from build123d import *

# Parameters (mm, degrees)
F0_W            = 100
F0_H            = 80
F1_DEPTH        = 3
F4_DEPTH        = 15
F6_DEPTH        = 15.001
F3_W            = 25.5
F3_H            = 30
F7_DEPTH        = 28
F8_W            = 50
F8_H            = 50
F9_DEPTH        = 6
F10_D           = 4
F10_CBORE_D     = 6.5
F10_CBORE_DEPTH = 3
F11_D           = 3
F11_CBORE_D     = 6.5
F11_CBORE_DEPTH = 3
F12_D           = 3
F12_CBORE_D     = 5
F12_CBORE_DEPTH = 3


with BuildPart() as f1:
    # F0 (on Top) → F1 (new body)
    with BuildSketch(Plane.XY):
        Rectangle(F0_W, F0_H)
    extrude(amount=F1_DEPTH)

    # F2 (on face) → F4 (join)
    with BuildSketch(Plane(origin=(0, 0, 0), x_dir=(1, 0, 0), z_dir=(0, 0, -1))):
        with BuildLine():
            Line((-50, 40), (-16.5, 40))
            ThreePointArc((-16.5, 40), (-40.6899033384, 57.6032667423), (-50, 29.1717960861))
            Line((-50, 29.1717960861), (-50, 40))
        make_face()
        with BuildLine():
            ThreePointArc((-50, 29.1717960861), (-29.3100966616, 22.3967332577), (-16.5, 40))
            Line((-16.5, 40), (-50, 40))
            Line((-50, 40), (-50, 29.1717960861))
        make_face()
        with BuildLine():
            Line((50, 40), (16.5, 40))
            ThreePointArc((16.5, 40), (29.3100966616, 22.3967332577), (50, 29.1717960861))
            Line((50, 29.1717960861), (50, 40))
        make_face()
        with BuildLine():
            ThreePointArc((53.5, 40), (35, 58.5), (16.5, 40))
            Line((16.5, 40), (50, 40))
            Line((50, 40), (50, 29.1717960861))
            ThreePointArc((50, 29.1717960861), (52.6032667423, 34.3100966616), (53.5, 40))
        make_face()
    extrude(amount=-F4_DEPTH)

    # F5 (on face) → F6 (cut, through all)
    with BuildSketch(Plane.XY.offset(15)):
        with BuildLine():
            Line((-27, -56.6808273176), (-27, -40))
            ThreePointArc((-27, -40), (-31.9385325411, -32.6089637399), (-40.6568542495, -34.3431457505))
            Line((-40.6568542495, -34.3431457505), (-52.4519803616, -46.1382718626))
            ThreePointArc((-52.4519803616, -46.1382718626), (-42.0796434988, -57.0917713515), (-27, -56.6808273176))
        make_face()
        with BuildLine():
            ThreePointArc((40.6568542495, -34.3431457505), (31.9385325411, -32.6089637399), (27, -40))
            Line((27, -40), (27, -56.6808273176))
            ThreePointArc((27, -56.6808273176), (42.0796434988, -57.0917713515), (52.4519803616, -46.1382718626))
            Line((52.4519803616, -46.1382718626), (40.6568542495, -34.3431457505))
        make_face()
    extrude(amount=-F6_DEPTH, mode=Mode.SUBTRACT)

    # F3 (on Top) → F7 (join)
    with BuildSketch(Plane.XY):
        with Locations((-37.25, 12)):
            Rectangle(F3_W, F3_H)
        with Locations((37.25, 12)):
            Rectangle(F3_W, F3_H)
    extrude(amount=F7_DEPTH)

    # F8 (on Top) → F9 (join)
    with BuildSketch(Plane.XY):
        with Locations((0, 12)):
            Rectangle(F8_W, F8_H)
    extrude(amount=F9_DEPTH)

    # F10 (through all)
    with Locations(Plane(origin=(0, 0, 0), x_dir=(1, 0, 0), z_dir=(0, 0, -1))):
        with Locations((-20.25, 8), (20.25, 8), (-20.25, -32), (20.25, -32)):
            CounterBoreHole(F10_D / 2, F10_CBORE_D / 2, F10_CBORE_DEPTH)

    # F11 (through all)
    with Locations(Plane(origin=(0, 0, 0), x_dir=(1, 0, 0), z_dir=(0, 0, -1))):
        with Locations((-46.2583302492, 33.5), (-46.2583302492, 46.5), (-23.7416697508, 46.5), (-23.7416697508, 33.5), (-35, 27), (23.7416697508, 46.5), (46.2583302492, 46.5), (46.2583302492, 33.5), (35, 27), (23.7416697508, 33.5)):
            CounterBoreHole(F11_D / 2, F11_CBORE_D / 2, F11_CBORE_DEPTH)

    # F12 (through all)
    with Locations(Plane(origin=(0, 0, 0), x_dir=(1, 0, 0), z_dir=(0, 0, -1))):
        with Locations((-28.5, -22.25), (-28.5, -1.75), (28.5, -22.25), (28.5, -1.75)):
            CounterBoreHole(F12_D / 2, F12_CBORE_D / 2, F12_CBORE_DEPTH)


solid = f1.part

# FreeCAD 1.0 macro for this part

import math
import FreeCAD as App
import Part
import Sketcher
from FreeCAD import Vector

doc = App.newDocument("Part")
body = doc.addObject("PartDesign::Body", "Body")

sketch1 = body.newObject("Sketcher::SketchObject", "Sketch")
sketch1.AttachmentSupport = (doc.getObject("XY_Plane"), [""])
sketch1.MapMode = "FlatFace"
sketch1.addGeometry([
    Part.LineSegment(Vector(-50, 40, 0), Vector(-50, -40, 0)),
    Part.LineSegment(Vector(-50, -40, 0), Vector(50, -40, 0)),
    Part.LineSegment(Vector(50, -40, 0), Vector(50, 40, 0)),
    Part.LineSegment(Vector(50, 40, 0), Vector(-50, 40, 0)),
], False)
sketch1.addConstraint([
    Sketcher.Constraint("Coincident", 0, 2, 1, 1),
    Sketcher.Constraint("Coincident", 1, 2, 2, 1),
    Sketcher.Constraint("Coincident", 2, 2, 3, 1),
    Sketcher.Constraint("Coincident", 3, 2, 0, 1),
    Sketcher.Constraint("Vertical", 0),
    Sketcher.Constraint("Horizontal", 1),
    Sketcher.Constraint("Vertical", 2),
    Sketcher.Constraint("Horizontal", 3),
    Sketcher.Constraint("Symmetric", 0, 2, 2, 2, -1, 1),
    Sketcher.Constraint("DistanceX", 1, 1, 1, 2, 100.0),
    Sketcher.Constraint("DistanceY", 0, 2, 0, 1, 80.0),
])
pad1 = body.newObject("PartDesign::Pad", "Pad")
pad1.Profile = sketch1
pad1.Length = 3

sketch2 = body.newObject("Sketcher::SketchObject", "Sketch001")
sketch2.AttachmentSupport = (doc.getObject("XY_Plane"), [""])
sketch2.MapMode = "FlatFace"
sketch2.addGeometry([
    Part.ArcOfCircle(Part.Circle(Vector(-35, -40, 0), Vector(0, 0, 1), 18), math.radians(144), math.radians(360)),
    Part.ArcOfCircle(Part.Circle(Vector(-35, -40, 0), Vector(0, 0, 1), 18), math.radians(0), math.radians(144)),
    Part.ArcOfCircle(Part.Circle(Vector(35, -40, 0), Vector(0, 0, 1), 18), math.radians(36), math.radians(180)),
    Part.ArcOfCircle(Part.Circle(Vector(35, -40, 0), Vector(0, 0, 1), 18), math.radians(0), math.radians(36)),
    Part.ArcOfCircle(Part.Circle(Vector(35, -40, 0), Vector(0, 0, 1), 18), math.radians(180), math.radians(360)),
], False)
sketch2.addConstraint([
    Sketcher.Constraint("Tangent", 0, 1, 1, 2),
    Sketcher.Constraint("Coincident", 1, 1, 0, 2),
    Sketcher.Constraint("Tangent", 2, 1, 3, 2),
    Sketcher.Constraint("Tangent", 3, 1, 4, 2),
    Sketcher.Constraint("Tangent", 4, 1, 2, 2),
    Sketcher.Constraint("Equal", 1, 2),
    Sketcher.Constraint("Symmetric", 0, 3, 2, 3, -2),
    Sketcher.Constraint("Horizontal", 4, 3, 1, 1),
    Sketcher.Constraint("Horizontal", 0, 1, 2, 1),
    Sketcher.Constraint("Horizontal", 1, 1, 3, 1),
    Sketcher.Constraint("Horizontal", 3, 1, 4, 1),
    Sketcher.Constraint("Radius", 0, 18.5),
    Sketcher.Constraint("DistanceX", 0, 3, -1, 1, 35.0),
    Sketcher.Constraint("DistanceY", 0, 3, -1, 1, 40.0),
    Sketcher.Constraint("DistanceX", 0, 1, -1, 1, 50.0),
])
pad2 = body.newObject("PartDesign::Pad", "Pad001")
pad2.Profile = sketch2
pad2.Length = 15

sketch3 = body.newObject("Sketcher::SketchObject", "Sketch002")
sketch3.AttachmentSupport = (doc.getObject("XY_Plane"), [""])
sketch3.MapMode = "FlatFace"
sketch3.AttachmentOffset = App.Placement(Vector(0, 0, 15), App.Rotation())
sketch3.addGeometry([
    Part.LineSegment(Vector(-27, -57, 0), Vector(-27, -40, 0)),
    Part.ArcOfCircle(Part.Circle(Vector(-35, -40, 0), Vector(0, 0, 1), 8), math.radians(0), math.radians(135)),
    Part.LineSegment(Vector(-41, -34, 0), Vector(-52, -46, 0)),
    Part.ArcOfCircle(Part.Circle(Vector(-35, -40, 0), Vector(0, 0, 1), 18), math.radians(-161), math.radians(-64)),
    Part.ArcOfCircle(Part.Circle(Vector(35, -40, 0), Vector(0, 0, 1), 8), math.radians(45), math.radians(180)),
    Part.LineSegment(Vector(27, -40, 0), Vector(27, -57, 0)),
    Part.ArcOfCircle(Part.Circle(Vector(35, -40, 0), Vector(0, 0, 1), 18), math.radians(-116), math.radians(-19)),
    Part.LineSegment(Vector(52, -46, 0), Vector(41, -34, 0)),
], False)
sketch3.addConstraint([
    Sketcher.Constraint("Tangent", 0, 2, 1, 1),
    Sketcher.Constraint("Tangent", 1, 2, 2, 1),
    Sketcher.Constraint("Coincident", 2, 2, 3, 1),
    Sketcher.Constraint("Coincident", 3, 2, 0, 1),
    Sketcher.Constraint("Tangent", 4, 2, 5, 1),
    Sketcher.Constraint("Coincident", 5, 2, 6, 1),
    Sketcher.Constraint("Coincident", 6, 2, 7, 1),
    Sketcher.Constraint("Tangent", 7, 2, 4, 1),
    Sketcher.Constraint("Vertical", 0),
    Sketcher.Constraint("Vertical", 5),
    Sketcher.Constraint("Coincident", 3, 3, 1, 3),
    Sketcher.Constraint("Coincident", 6, 3, 4, 3),
    Sketcher.Constraint("Equal", 1, 4),
    Sketcher.Constraint("Equal", 3, 6),
    Sketcher.Constraint("Symmetric", 1, 3, 4, 3, -2),
    Sketcher.Constraint("Perpendicular", 2, 7),
    Sketcher.Constraint("Horizontal", 2, 2, 6, 2),
    Sketcher.Constraint("Radius", 1, 8.0),
    Sketcher.Constraint("Radius", 3, 18.5),
    Sketcher.Constraint("DistanceX", 1, 3, -1, 1, 35.0),
    Sketcher.Constraint("DistanceY", 1, 3, -1, 1, 40.0),
])
pocket1 = body.newObject("PartDesign::Pocket", "Pocket")
pocket1.Profile = sketch3
pocket1.Type = "ThroughAll"

sketch4 = body.newObject("Sketcher::SketchObject", "Sketch003")
sketch4.AttachmentSupport = (doc.getObject("XY_Plane"), [""])
sketch4.MapMode = "FlatFace"
sketch4.addGeometry([
    Part.LineSegment(Vector(-50, 27, 0), Vector(-50, -3, 0)),
    Part.LineSegment(Vector(-50, -3, 0), Vector(-24, -3, 0)),
    Part.LineSegment(Vector(-24, -3, 0), Vector(-24, 27, 0)),
    Part.LineSegment(Vector(-24, 27, 0), Vector(-50, 27, 0)),
    Part.LineSegment(Vector(24, 27, 0), Vector(24, -3, 0)),
    Part.LineSegment(Vector(24, -3, 0), Vector(50, -3, 0)),
    Part.LineSegment(Vector(50, -3, 0), Vector(50, 27, 0)),
    Part.LineSegment(Vector(50, 27, 0), Vector(24, 27, 0)),
], False)
sketch4.addConstraint([
    Sketcher.Constraint("Coincident", 0, 2, 1, 1),
    Sketcher.Constraint("Coincident", 1, 2, 2, 1),
    Sketcher.Constraint("Coincident", 2, 2, 3, 1),
    Sketcher.Constraint("Coincident", 3, 2, 0, 1),
    Sketcher.Constraint("Coincident", 4, 2, 5, 1),
    Sketcher.Constraint("Coincident", 5, 2, 6, 1),
    Sketcher.Constraint("Coincident", 6, 2, 7, 1),
    Sketcher.Constraint("Coincident", 7, 2, 4, 1),
    Sketcher.Constraint("Vertical", 0),
    Sketcher.Constraint("Horizontal", 1),
    Sketcher.Constraint("Vertical", 2),
    Sketcher.Constraint("Horizontal", 3),
    Sketcher.Constraint("Vertical", 4),
    Sketcher.Constraint("Horizontal", 5),
    Sketcher.Constraint("Vertical", 6),
    Sketcher.Constraint("Horizontal", 7),
    Sketcher.Constraint("Symmetric", 1, 2, 4, 2, -2),
    Sketcher.Constraint("Symmetric", 3, 2, 6, 2, -2),
    Sketcher.Constraint("DistanceY", 0, 2, 0, 1, 30.0),
    Sketcher.Constraint("DistanceX", 1, 1, 1, 2, 25.5),
    Sketcher.Constraint("DistanceX", 0, 2, -1, 1, 50.0),
    Sketcher.Constraint("DistanceY", 0, 2, -1, 1, 3.0),
])
pad3 = body.newObject("PartDesign::Pad", "Pad002")
pad3.Profile = sketch4
pad3.Length = 28

sketch5 = body.newObject("Sketcher::SketchObject", "Sketch004")
sketch5.AttachmentSupport = (doc.getObject("XY_Plane"), [""])
sketch5.MapMode = "FlatFace"
sketch5.addGeometry([
    Part.LineSegment(Vector(-25, 37, 0), Vector(-25, -13, 0)),
    Part.LineSegment(Vector(-25, -13, 0), Vector(25, -13, 0)),
    Part.LineSegment(Vector(25, -13, 0), Vector(25, 37, 0)),
    Part.LineSegment(Vector(25, 37, 0), Vector(-25, 37, 0)),
], False)
sketch5.addConstraint([
    Sketcher.Constraint("Coincident", 0, 2, 1, 1),
    Sketcher.Constraint("Coincident", 1, 2, 2, 1),
    Sketcher.Constraint("Coincident", 2, 2, 3, 1),
    Sketcher.Constraint("Coincident", 3, 2, 0, 1),
    Sketcher.Constraint("Vertical", 0),
    Sketcher.Constraint("Horizontal", 1),
    Sketcher.Constraint("Vertical", 2),
    Sketcher.Constraint("Horizontal", 3),
    Sketcher.Constraint("Equal", 3, 0),
    Sketcher.Constraint("DistanceX", 1, 1, 1, 2, 50.0),
    Sketcher.Constraint("DistanceX", 0, 2, -1, 1, 25.0),
    Sketcher.Constraint("DistanceY", 0, 2, -1, 1, 13.0),
])
pad4 = body.newObject("PartDesign::Pad", "Pad003")
pad4.Profile = sketch5
pad4.Length = 6

sketch6 = body.newObject("Sketcher::SketchObject", "Sketch005")
sketch6.AttachmentSupport = (doc.getObject("XY_Plane"), [""])
sketch6.MapMode = "FlatFace"
sketch6.addGeometry([
    Part.Circle(Vector(-20.2, -8, 0), Vector(0, 0, 1), 2),
    Part.Circle(Vector(20.2, -8, 0), Vector(0, 0, 1), 2),
    Part.Circle(Vector(-20.2, 32, 0), Vector(0, 0, 1), 2),
    Part.Circle(Vector(20.2, 32, 0), Vector(0, 0, 1), 2),
], False)
sketch6.addConstraint([
    Sketcher.Constraint("Equal", 0, 1),
    Sketcher.Constraint("Equal", 1, 2),
    Sketcher.Constraint("Equal", 2, 3),
    Sketcher.Constraint("Symmetric", 0, 3, 1, 3, -2),
    Sketcher.Constraint("Symmetric", 2, 3, 3, 3, -2),
    Sketcher.Constraint("Vertical", 0, 3, 2, 3),
    Sketcher.Constraint("Diameter", 0, 4.0),
    Sketcher.Constraint("DistanceY", 0, 3, -1, 1, 8.0),
    Sketcher.Constraint("DistanceY", -1, 1, 2, 3, 32.0),
    Sketcher.Constraint("DistanceX", 0, 3, 1, 3, 40.5),
])
doc.recompute()
hole = body.newObject("PartDesign::Hole", "Hole")
hole.Profile = sketch6
hole.ThreadType = "None"
hole.Diameter = 4
hole.DepthType = "ThroughAll"
hole.HoleCutType = "Counterbore"
hole.HoleCutDiameter = 6.5
hole.HoleCutDepth = 3
hole.Reversed = True

sketch7 = body.newObject("Sketcher::SketchObject", "Sketch006")
sketch7.AttachmentSupport = (doc.getObject("XY_Plane"), [""])
sketch7.MapMode = "FlatFace"
sketch7.addGeometry([
    Part.Circle(Vector(-46.3, -33.5, 0), Vector(0, 0, 1), 1.5),
    Part.Circle(Vector(-46.3, -46.5, 0), Vector(0, 0, 1), 1.5),
    Part.Circle(Vector(-23.7, -46.5, 0), Vector(0, 0, 1), 1.5),
    Part.Circle(Vector(-23.7, -33.5, 0), Vector(0, 0, 1), 1.5),
    Part.Circle(Vector(-35, -27, 0), Vector(0, 0, 1), 1.5),
    Part.Circle(Vector(23.7, -46.5, 0), Vector(0, 0, 1), 1.5),
    Part.Circle(Vector(46.3, -46.5, 0), Vector(0, 0, 1), 1.5),
    Part.Circle(Vector(46.3, -33.5, 0), Vector(0, 0, 1), 1.5),
    Part.Circle(Vector(35, -27, 0), Vector(0, 0, 1), 1.5),
    Part.Circle(Vector(23.7, -33.5, 0), Vector(0, 0, 1), 1.5),
], False)
sketch7.addConstraint([
    Sketcher.Constraint("Equal", 0, 1),
    Sketcher.Constraint("Equal", 1, 2),
    Sketcher.Constraint("Equal", 2, 3),
    Sketcher.Constraint("Equal", 3, 4),
    Sketcher.Constraint("Equal", 4, 5),
    Sketcher.Constraint("Equal", 5, 6),
    Sketcher.Constraint("Equal", 6, 7),
    Sketcher.Constraint("Equal", 7, 8),
    Sketcher.Constraint("Equal", 8, 9),
    Sketcher.Constraint("Symmetric", 2, 3, 5, 3, -2),
    Sketcher.Constraint("Symmetric", 1, 3, 6, 3, -2),
    Sketcher.Constraint("Symmetric", 0, 3, 7, 3, -2),
    Sketcher.Constraint("Symmetric", 4, 3, 8, 3, -2),
    Sketcher.Constraint("Symmetric", 3, 3, 9, 3, -2),
    Sketcher.Constraint("Horizontal", 1, 3, 2, 3),
    Sketcher.Constraint("Horizontal", 0, 3, 3, 3),
    Sketcher.Constraint("Vertical", 0, 3, 1, 3),
    Sketcher.Constraint("Vertical", 2, 3, 3, 3),
    Sketcher.Constraint("Diameter", 0, 3.0),
    Sketcher.Constraint("DistanceX", 4, 3, -1, 1, 35.0),
    Sketcher.Constraint("DistanceY", 4, 3, -1, 1, 27.0),
    Sketcher.Constraint("DistanceY", 1, 3, 0, 3, 13.0),
    Sketcher.Constraint("DistanceX", 1, 3, 5, 3, 70.0),
    Sketcher.Constraint("DistanceY", 0, 3, -1, 1, 33.5),
    Sketcher.Constraint("DistanceX", 0, 3, -1, 1, 46.25833),
])
doc.recompute()
hole2 = body.newObject("PartDesign::Hole", "Hole001")
hole2.Profile = sketch7
hole2.ThreadType = "None"
hole2.Diameter = 3
hole2.DepthType = "ThroughAll"
hole2.HoleCutType = "Counterbore"
hole2.HoleCutDiameter = 6.5
hole2.HoleCutDepth = 3
hole2.Reversed = True

sketch8 = body.newObject("Sketcher::SketchObject", "Sketch007")
sketch8.AttachmentSupport = (doc.getObject("XY_Plane"), [""])
sketch8.MapMode = "FlatFace"
sketch8.addGeometry([
    Part.Circle(Vector(-28.5, 22.2, 0), Vector(0, 0, 1), 1.5),
    Part.Circle(Vector(-28.5, 1.8, 0), Vector(0, 0, 1), 1.5),
    Part.Circle(Vector(28.5, 22.2, 0), Vector(0, 0, 1), 1.5),
    Part.Circle(Vector(28.5, 1.8, 0), Vector(0, 0, 1), 1.5),
], False)
sketch8.addConstraint([
    Sketcher.Constraint("Equal", 0, 1),
    Sketcher.Constraint("Equal", 1, 2),
    Sketcher.Constraint("Equal", 2, 3),
    Sketcher.Constraint("Symmetric", 0, 3, 2, 3, -2),
    Sketcher.Constraint("Symmetric", 1, 3, 3, 3, -2),
    Sketcher.Constraint("Vertical", 0, 3, 1, 3),
    Sketcher.Constraint("Diameter", 0, 3.0),
    Sketcher.Constraint("DistanceX", 0, 3, 2, 3, 57.0),
    Sketcher.Constraint("DistanceY", 1, 3, 0, 3, 20.5),
    Sketcher.Constraint("DistanceY", -1, 1, 0, 3, 22.25),
])
doc.recompute()
hole3 = body.newObject("PartDesign::Hole", "Hole002")
hole3.Profile = sketch8
hole3.ThreadType = "None"
hole3.Diameter = 3
hole3.DepthType = "ThroughAll"
hole3.HoleCutType = "Counterbore"
hole3.HoleCutDiameter = 5
hole3.HoleCutDepth = 3
hole3.Reversed = True

doc.recompute()
